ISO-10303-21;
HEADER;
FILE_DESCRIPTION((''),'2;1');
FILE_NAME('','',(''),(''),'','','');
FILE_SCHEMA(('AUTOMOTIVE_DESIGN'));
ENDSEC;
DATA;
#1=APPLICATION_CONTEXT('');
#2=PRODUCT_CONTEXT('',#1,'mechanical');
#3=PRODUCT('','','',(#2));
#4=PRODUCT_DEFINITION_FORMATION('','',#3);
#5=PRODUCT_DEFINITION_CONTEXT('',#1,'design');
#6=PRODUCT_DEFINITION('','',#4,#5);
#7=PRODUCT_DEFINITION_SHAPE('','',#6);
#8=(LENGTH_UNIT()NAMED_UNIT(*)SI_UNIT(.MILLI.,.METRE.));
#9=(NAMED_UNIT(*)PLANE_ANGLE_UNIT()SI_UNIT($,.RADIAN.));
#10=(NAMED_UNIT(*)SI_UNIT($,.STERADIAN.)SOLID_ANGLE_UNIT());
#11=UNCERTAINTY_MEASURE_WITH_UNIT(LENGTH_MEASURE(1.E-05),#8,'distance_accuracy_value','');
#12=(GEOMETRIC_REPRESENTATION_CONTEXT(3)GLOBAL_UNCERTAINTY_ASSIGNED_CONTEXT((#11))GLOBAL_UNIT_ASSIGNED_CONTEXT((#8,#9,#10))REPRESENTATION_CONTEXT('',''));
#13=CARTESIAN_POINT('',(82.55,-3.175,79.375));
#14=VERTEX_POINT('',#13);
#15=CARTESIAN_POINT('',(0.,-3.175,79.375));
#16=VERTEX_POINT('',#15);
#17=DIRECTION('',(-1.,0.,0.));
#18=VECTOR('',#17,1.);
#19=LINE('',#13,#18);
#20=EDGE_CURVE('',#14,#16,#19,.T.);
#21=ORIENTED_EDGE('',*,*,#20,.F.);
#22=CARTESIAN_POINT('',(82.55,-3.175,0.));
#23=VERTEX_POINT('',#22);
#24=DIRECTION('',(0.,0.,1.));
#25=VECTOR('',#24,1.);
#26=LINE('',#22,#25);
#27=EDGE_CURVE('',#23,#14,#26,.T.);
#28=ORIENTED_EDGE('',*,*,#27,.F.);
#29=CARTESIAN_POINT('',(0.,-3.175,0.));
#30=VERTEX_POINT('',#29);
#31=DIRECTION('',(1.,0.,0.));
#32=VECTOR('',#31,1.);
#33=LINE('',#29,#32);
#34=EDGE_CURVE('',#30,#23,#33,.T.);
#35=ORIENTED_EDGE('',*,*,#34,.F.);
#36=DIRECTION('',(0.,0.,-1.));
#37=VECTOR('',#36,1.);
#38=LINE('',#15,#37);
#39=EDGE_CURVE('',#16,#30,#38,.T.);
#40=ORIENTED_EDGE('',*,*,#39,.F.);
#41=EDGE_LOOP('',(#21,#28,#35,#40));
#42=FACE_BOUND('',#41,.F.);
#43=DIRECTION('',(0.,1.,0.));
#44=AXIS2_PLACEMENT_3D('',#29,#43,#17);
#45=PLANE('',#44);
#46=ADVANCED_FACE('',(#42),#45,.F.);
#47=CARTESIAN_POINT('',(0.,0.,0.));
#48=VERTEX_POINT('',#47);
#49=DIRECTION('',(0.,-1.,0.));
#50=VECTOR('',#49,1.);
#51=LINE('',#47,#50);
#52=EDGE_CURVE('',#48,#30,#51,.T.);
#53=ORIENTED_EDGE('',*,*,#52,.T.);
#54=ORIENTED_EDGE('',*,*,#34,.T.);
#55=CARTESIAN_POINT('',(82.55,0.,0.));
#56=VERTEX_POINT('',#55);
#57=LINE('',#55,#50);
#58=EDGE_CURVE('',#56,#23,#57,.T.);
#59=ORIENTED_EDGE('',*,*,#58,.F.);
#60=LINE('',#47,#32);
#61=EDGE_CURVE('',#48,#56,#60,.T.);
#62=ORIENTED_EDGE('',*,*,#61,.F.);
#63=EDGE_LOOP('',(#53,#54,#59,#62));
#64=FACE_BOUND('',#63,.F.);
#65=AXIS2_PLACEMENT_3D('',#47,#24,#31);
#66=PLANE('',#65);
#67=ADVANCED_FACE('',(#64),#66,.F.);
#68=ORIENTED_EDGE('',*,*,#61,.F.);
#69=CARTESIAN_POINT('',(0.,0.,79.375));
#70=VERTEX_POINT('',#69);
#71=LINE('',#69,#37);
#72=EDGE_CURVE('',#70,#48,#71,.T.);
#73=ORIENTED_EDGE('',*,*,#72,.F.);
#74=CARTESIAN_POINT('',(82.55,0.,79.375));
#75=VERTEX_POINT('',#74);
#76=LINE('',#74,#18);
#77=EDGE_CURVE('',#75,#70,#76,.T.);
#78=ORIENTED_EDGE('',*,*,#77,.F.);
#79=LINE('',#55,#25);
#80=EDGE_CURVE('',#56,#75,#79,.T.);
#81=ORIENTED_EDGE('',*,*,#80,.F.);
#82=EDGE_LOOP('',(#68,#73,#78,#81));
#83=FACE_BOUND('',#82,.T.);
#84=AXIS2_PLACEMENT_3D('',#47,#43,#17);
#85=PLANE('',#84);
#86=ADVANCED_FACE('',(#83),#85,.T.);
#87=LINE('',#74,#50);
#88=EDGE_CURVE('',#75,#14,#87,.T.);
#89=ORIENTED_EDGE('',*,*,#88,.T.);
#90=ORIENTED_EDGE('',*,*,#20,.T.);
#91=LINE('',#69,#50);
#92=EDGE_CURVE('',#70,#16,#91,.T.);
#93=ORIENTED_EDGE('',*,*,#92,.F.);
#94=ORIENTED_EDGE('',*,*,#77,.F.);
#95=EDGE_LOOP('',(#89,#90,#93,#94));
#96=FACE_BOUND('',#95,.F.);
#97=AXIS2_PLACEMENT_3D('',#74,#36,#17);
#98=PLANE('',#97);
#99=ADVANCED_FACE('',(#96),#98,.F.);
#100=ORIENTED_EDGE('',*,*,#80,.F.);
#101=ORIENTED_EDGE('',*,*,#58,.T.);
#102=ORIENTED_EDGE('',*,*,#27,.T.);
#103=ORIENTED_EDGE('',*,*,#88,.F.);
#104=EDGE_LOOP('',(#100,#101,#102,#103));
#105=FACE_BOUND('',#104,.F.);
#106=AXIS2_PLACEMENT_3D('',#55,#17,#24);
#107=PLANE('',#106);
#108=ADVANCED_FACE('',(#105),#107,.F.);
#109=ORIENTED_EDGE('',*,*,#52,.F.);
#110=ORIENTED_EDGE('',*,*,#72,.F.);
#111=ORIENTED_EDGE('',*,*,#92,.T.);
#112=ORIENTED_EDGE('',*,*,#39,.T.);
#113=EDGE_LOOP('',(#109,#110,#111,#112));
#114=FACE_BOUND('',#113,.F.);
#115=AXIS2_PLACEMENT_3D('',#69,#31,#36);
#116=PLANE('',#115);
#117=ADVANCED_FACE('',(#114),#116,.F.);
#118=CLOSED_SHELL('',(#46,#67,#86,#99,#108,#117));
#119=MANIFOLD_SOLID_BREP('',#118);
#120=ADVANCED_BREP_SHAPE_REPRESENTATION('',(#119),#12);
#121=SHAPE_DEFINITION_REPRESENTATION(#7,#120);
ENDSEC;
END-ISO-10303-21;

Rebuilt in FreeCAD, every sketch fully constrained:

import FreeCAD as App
import Part
import Sketcher
Q = App.Units.Quantity


def add_polygon(sketch, points):
    """Adds a closed chain of lines whose ends are joined by coincident constraints."""
    first, n = sketch.GeometryCount, len(points)
    for a, b in zip(points, points[1:] + points[:1]):
        sketch.addGeometry(Part.LineSegment(App.Vector(*a, 0), App.Vector(*b, 0)), False)
    for i in range(n):
        sketch.addConstraint(Sketcher.Constraint("Coincident", first + i, 2, first + (i + 1) % n, 1))

doc = App.newDocument("Part")
params = doc.addObject("Spreadsheet::Sheet", "Params")
for row, (alias, value) in enumerate([
    ("sketch1_width", "3.25 in"),
    ("sketch1_height", "3.125 in"),
    ("pad1_length", "0.125 in"),
], start=1):
    params.set(f"A{row}", alias)
    params.set(f"B{row}", "=" + value)
    params.setAlias(f"B{row}", alias)

body = doc.addObject("PartDesign::Body", "Body")

sketch1 = body.newObject("Sketcher::SketchObject", "Sketch")
sketch1.AttachmentSupport = (doc.getObject("XZ_Plane"), [""])
sketch1.MapMode = "FlatFace"
add_polygon(sketch1, [(82.55, 0), (0, 0), (0, 79.375), (82.55, 79.375)])
sketch1.addConstraint([
    Sketcher.Constraint("Horizontal", 0),
    Sketcher.Constraint("Vertical", 1),
    Sketcher.Constraint("Horizontal", 2),
    Sketcher.Constraint("Vertical", 3),
    Sketcher.Constraint("Coincident", 0, 2, -1, 1),
    Sketcher.Constraint("DistanceX", 0, 2, 0, 1, Q("3.25 in")),
    Sketcher.Constraint("DistanceY", 1, 1, 1, 2, Q("3.125 in")),
])
sketch1.setExpression("Constraints[9]", "Params.sketch1_width")
sketch1.setExpression("Constraints[10]", "Params.sketch1_height")
pad1 = body.newObject("PartDesign::Pad", "Pad")
pad1.Profile = sketch1
pad1.setExpression("Length", "Params.pad1_length")

doc.recompute()
